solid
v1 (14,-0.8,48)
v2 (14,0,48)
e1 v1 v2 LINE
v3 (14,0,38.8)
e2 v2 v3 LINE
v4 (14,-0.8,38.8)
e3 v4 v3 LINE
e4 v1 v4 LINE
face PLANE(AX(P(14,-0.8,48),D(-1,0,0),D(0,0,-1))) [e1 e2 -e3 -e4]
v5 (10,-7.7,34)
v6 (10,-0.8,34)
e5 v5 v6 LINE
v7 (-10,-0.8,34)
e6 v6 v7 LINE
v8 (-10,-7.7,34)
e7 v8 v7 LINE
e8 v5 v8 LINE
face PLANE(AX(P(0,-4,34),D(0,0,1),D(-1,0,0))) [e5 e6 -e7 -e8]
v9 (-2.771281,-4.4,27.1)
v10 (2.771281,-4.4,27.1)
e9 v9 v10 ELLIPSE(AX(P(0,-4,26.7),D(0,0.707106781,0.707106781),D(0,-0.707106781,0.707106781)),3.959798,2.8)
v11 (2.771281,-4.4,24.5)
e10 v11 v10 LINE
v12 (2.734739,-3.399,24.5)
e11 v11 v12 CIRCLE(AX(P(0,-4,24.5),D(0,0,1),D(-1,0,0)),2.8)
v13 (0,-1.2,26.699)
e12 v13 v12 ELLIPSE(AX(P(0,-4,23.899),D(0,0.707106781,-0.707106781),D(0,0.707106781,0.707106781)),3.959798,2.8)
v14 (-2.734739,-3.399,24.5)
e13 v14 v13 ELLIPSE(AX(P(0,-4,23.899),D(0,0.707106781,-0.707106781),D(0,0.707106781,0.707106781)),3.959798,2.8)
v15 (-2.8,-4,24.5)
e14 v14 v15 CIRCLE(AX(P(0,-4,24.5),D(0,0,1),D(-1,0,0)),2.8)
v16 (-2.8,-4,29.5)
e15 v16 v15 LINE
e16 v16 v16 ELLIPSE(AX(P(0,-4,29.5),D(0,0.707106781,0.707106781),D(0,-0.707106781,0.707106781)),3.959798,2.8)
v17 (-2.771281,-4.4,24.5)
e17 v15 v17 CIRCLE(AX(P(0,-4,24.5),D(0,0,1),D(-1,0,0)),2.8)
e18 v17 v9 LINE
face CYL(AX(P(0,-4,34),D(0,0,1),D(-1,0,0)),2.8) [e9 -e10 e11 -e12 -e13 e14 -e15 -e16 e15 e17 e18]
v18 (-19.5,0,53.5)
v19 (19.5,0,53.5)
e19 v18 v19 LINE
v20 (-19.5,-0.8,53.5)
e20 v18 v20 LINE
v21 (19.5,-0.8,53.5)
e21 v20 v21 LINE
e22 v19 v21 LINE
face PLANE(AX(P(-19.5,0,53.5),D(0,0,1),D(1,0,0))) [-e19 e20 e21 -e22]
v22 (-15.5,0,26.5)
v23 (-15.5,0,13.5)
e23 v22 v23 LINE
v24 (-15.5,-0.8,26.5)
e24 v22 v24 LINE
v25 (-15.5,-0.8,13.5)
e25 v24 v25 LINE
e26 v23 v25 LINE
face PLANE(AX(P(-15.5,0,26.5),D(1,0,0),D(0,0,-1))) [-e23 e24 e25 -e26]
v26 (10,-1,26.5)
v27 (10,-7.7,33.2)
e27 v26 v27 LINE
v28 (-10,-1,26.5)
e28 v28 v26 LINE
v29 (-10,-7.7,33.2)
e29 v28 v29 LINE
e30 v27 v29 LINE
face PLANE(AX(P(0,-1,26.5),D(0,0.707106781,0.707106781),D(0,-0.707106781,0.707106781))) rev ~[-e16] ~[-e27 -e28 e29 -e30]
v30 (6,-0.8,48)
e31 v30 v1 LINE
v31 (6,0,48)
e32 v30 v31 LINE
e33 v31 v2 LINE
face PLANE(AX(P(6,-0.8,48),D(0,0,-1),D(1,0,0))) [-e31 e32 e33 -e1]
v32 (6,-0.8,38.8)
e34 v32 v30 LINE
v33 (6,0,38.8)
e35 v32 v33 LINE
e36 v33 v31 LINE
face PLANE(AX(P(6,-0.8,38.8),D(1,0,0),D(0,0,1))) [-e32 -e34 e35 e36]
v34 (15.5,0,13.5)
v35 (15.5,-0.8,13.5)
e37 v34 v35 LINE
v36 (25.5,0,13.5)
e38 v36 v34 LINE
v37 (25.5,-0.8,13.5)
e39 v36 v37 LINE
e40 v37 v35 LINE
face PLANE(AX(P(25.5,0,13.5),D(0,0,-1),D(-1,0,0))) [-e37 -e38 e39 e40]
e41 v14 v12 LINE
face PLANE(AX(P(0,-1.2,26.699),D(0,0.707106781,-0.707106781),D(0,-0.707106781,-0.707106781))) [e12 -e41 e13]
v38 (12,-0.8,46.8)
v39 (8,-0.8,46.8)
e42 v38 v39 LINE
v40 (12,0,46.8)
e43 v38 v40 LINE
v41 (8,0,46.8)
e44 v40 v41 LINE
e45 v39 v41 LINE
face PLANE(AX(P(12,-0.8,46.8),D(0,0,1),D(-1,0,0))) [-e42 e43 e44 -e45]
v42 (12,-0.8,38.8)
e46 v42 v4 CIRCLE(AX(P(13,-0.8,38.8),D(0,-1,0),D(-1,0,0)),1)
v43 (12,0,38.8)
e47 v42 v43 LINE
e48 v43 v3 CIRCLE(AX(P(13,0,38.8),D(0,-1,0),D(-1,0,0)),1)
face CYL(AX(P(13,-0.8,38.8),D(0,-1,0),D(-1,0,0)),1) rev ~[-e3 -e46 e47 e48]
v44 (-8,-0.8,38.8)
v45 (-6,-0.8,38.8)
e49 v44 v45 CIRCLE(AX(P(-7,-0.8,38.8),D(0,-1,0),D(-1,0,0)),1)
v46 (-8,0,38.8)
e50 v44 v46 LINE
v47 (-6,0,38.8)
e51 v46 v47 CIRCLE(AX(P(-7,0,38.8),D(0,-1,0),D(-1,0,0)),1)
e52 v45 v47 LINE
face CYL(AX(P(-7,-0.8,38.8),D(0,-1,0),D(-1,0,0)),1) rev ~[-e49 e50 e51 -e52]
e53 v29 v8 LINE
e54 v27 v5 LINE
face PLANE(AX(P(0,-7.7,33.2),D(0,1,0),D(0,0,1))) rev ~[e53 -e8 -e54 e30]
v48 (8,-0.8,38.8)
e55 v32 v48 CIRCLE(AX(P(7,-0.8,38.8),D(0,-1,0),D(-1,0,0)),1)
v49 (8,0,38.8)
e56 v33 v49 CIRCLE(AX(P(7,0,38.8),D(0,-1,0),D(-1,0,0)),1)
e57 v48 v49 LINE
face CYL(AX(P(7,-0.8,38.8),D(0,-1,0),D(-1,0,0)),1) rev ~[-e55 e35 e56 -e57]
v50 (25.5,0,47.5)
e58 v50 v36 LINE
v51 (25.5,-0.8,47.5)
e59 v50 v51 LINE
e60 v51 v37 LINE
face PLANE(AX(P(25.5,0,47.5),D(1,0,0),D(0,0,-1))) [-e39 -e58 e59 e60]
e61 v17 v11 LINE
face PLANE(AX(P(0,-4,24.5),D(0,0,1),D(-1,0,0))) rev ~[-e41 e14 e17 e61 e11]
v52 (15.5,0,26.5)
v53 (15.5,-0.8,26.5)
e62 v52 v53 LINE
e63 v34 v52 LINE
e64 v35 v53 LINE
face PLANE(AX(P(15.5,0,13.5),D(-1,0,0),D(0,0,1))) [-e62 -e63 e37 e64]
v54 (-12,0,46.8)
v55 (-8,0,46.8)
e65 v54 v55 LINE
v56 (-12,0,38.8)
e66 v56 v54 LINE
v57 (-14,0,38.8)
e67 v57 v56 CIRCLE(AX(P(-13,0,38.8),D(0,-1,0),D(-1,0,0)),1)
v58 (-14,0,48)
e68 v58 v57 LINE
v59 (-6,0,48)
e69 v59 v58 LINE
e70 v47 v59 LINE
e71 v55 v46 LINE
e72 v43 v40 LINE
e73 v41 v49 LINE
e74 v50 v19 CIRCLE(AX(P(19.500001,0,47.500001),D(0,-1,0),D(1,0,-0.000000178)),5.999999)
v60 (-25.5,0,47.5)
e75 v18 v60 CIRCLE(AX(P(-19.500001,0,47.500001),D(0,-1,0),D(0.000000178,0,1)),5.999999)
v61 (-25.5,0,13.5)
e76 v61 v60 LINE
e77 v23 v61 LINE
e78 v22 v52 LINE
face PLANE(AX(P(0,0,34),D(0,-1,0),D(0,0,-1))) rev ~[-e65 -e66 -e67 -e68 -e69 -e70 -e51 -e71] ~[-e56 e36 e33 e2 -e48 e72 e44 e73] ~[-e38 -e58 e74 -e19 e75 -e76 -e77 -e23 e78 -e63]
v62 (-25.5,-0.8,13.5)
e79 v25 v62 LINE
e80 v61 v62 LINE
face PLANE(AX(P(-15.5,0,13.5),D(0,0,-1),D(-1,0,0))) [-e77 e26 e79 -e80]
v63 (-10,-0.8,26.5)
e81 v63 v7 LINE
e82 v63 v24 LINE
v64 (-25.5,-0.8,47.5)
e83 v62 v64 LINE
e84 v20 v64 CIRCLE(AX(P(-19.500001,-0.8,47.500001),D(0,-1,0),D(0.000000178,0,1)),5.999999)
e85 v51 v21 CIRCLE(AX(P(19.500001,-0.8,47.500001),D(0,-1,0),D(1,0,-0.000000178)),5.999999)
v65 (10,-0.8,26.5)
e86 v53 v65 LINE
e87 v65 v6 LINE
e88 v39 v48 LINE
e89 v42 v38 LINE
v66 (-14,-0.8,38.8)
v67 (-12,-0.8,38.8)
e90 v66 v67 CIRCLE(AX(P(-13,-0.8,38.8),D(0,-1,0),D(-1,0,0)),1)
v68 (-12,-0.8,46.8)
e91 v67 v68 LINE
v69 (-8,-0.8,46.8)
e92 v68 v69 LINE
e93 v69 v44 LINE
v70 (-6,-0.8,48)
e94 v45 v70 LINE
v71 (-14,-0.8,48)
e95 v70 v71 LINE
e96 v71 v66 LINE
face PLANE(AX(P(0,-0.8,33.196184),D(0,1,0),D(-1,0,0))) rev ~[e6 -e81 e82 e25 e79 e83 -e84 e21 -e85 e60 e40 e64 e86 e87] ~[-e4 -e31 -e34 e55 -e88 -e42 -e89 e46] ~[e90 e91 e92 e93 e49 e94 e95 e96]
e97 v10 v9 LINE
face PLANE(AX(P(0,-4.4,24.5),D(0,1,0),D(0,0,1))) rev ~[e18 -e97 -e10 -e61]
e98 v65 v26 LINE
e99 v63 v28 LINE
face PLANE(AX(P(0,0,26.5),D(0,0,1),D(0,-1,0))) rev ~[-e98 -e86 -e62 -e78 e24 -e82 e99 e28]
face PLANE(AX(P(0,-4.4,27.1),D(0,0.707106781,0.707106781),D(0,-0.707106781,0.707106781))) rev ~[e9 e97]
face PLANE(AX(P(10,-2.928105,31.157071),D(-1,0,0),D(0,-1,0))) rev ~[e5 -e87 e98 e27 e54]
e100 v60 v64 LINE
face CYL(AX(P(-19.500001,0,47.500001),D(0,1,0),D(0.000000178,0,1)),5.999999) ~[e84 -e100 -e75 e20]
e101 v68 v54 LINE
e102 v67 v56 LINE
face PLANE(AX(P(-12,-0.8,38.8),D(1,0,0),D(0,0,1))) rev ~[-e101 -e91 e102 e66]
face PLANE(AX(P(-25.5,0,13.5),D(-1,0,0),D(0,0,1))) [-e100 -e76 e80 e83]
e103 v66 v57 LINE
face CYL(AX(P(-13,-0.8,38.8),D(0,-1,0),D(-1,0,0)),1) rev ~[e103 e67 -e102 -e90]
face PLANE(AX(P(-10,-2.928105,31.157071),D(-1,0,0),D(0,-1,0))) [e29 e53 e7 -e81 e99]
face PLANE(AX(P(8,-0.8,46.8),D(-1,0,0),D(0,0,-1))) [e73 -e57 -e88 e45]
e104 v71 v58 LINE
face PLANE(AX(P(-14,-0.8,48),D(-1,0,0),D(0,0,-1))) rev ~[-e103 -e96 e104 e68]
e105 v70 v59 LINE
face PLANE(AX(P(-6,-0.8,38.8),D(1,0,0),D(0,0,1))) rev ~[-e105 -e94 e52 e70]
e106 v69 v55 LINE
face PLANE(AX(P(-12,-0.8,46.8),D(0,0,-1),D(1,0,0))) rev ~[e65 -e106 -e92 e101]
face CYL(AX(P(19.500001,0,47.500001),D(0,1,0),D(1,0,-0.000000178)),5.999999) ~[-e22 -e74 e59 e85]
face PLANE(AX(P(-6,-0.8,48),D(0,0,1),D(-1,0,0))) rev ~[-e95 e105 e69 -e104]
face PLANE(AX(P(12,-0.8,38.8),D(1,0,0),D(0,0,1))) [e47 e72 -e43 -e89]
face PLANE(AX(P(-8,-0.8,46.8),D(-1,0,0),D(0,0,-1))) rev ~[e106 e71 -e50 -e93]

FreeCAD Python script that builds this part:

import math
import FreeCAD as App
import Part
import Sketcher
Q = App.Units.Quantity

doc = App.newDocument("Part")
params = doc.addObject("Spreadsheet::Sheet", "Params")
for row, (alias, value) in enumerate([
    ("sketch1_radius", "5.999999 mm"),
    ("sketch1_width", "10 mm"),
    ("sketch1_width2", "31 mm"),
    ("sketch1_height", "34 mm"),
    ("sketch1_height2", "13 mm"),
    ("pad1_length", "0.8 mm"),
    ("sketch2_width", "1 mm"),
    ("sketch2_width2", "7.7 mm"),
    ("sketch2_height", "7.5 mm"),
    ("pad2_length", "20 mm"),
    ("sketch3_diameter", "5.6 mm"),
    ("pad3_length", "9.5 mm"),
    ("sketch4_width", "3.3 mm"),
    ("sketch4_height", "5.9 mm"),
    ("pocket1_length", "6 mm"),
    ("sketch5_radius", "1 mm"),
    ("sketch5_width", "4 mm"),
    ("sketch5_height", "9.2 mm"),
    ("pocket2_length", "5 mm"),
], start=1):
    params.set(f"A{row}", alias)
    params.set(f"B{row}", "=" + value)
    params.setAlias(f"B{row}", alias)

body = doc.addObject("PartDesign::Body", "Body")

# Sketch on XZ plane
sketch1 = doc.addObject("Sketcher::SketchObject", "Sketch")
body.addObject(sketch1)
sketch1.AttachmentSupport = (doc.XZ_Plane, [""])
sketch1.MapMode = "FlatFace"
sketch1.addGeometry([
    Part.LineSegment(App.Vector(-25.5, 47.5, 0), App.Vector(-25.5, 13.5, 0)),  # 0
    Part.LineSegment(App.Vector(-25.5, 13.5, 0), App.Vector(-15.5, 13.5, 0)),  # 1
    Part.LineSegment(App.Vector(-15.5, 13.5, 0), App.Vector(-15.5, 26.5, 0)),  # 2
    Part.LineSegment(App.Vector(-15.5, 26.5, 0), App.Vector(15.5, 26.5, 0)),  # 3
    Part.LineSegment(App.Vector(15.5, 26.5, 0), App.Vector(15.5, 13.5, 0)),  # 4
    Part.LineSegment(App.Vector(15.5, 13.5, 0), App.Vector(25.5, 13.5, 0)),  # 5
    Part.LineSegment(App.Vector(25.5, 13.5, 0), App.Vector(25.5, 47.5, 0)),  # 6
    Part.ArcOfCircle(Part.Circle(App.Vector(19.500001, 47.500001, 0), App.Vector(0, 0, 1), 5.999999), math.radians(-0.00001), math.radians(90.00001)),  # 7
    Part.LineSegment(App.Vector(19.5, 53.5, 0), App.Vector(-19.5, 53.5, 0)),  # 8
    Part.ArcOfCircle(Part.Circle(App.Vector(-19.500001, 47.500001, 0), App.Vector(0, 0, 1), 5.999999), math.radians(89.99999), math.radians(180.00001)),  # 9
], False)
sketch1.addConstraint([
    Sketcher.Constraint("Coincident", 0, 2, 1, 1),
    Sketcher.Constraint("Coincident", 1, 2, 2, 1),
    Sketcher.Constraint("Coincident", 2, 2, 3, 1),
    Sketcher.Constraint("Coincident", 3, 2, 4, 1),
    Sketcher.Constraint("Coincident", 4, 2, 5, 1),
    Sketcher.Constraint("Coincident", 5, 2, 6, 1),
    Sketcher.Constraint("Tangent", 6, 2, 7, 1),
    Sketcher.Constraint("Tangent", 7, 2, 8, 1),
    Sketcher.Constraint("Tangent", 8, 2, 9, 1),
    Sketcher.Constraint("Tangent", 9, 2, 0, 1),
    Sketcher.Constraint("Vertical", 0),
    Sketcher.Constraint("Horizontal", 1),
    Sketcher.Constraint("Vertical", 2),
    Sketcher.Constraint("Horizontal", 3),
    Sketcher.Constraint("Vertical", 4),
    Sketcher.Constraint("Horizontal", 5),
    Sketcher.Constraint("Vertical", 6),
    Sketcher.Constraint("Horizontal", 8),
    Sketcher.Constraint("Equal", 7, 9),
    Sketcher.Constraint("Symmetric", 1, 2, 4, 2, -2),
    Sketcher.Constraint("Equal", 1, 5),
    Sketcher.Constraint("Radius", 7, Q("5.999999 mm")),
    Sketcher.Constraint("DistanceX", 1, 1, 1, 2, Q("10 mm")),
    Sketcher.Constraint("DistanceX", 3, 1, 3, 2, Q("31 mm")),
    Sketcher.Constraint("DistanceY", 0, 2, 0, 1, Q("34 mm")),
    Sketcher.Constraint("DistanceY", 2, 1, 2, 2, Q("13 mm")),
    Sketcher.Constraint("DistanceY", -1, 1, 7, 3, Q("47.500001 mm")),
])
sketch1.setExpression("Constraints[21]", "Params.sketch1_radius")
sketch1.setExpression("Constraints[22]", "Params.sketch1_width")
sketch1.setExpression("Constraints[23]", "Params.sketch1_width2")
sketch1.setExpression("Constraints[24]", "Params.sketch1_height")
sketch1.setExpression("Constraints[25]", "Params.sketch1_height2")
pad1 = doc.addObject("PartDesign::Pad", "Pad")
body.addObject(pad1)
pad1.Profile = sketch1
pad1.setExpression("Length", "Params.pad1_length")

# Sketch on YZ plane
sketch2 = doc.addObject("Sketcher::SketchObject", "Sketch001")
body.addObject(sketch2)
sketch2.AttachmentSupport = (doc.YZ_Plane, [""])
sketch2.MapMode = "FlatFace"
sketch2.addGeometry([
    Part.LineSegment(App.Vector(-7.7, 33.2, 0), App.Vector(-1, 26.5, 0)),  # 0
    Part.LineSegment(App.Vector(-1, 26.5, 0), App.Vector(0, 26.5, 0)),  # 1
    Part.LineSegment(App.Vector(0, 26.5, 0), App.Vector(0, 34, 0)),  # 2
    Part.LineSegment(App.Vector(0, 34, 0), App.Vector(-7.7, 34, 0)),  # 3
    Part.LineSegment(App.Vector(-7.7, 34, 0), App.Vector(-7.7, 33.2, 0)),  # 4
], False)
sketch2.addConstraint([
    Sketcher.Constraint("Coincident", 0, 2, 1, 1),
    Sketcher.Constraint("Coincident", 1, 2, 2, 1),
    Sketcher.Constraint("Coincident", 2, 2, 3, 1),
    Sketcher.Constraint("Coincident", 3, 2, 4, 1),
    Sketcher.Constraint("Coincident", 4, 2, 0, 1),
    Sketcher.Constraint("Horizontal", 1),
    Sketcher.Constraint("Vertical", 2),
    Sketcher.Constraint("Horizontal", 3),
    Sketcher.Constraint("Vertical", 4),
    Sketcher.Constraint("PointOnObject", 1, 2, -2),
    Sketcher.Constraint("DistanceX", 1, 1, 1, 2, Q("1 mm")),
    Sketcher.Constraint("Angle", 0, Q("-45 deg")),
    Sketcher.Constraint("DistanceX", 3, 2, 3, 1, Q("7.7 mm")),
    Sketcher.Constraint("DistanceY", 2, 1, 2, 2, Q("7.5 mm")),
    Sketcher.Constraint("DistanceY", -1, 1, 2, 2, Q("34 mm")),
])
sketch2.setExpression("Constraints[10]", "Params.sketch2_width")
sketch2.setExpression("Constraints[12]", "Params.sketch2_width2")
sketch2.setExpression("Constraints[13]", "Params.sketch2_height")
pad2 = doc.addObject("PartDesign::Pad", "Pad001")
body.addObject(pad2)
pad2.Profile = sketch2
pad2.setExpression("Length", "Params.pad2_length")
pad2.Midplane = True

# Sketch on XY plane
sketch3 = doc.addObject("Sketcher::SketchObject", "Sketch002")
body.addObject(sketch3)
sketch3.AttachmentSupport = (doc.XY_Plane, [""])
sketch3.MapMode = "FlatFace"
sketch3.AttachmentOffset = App.Placement(App.Vector(0, 0, 34), App.Rotation())
sketch3.addGeometry(Part.Circle(App.Vector(0, -4, 0), App.Vector(0, 0, 1), 2.8), False)
sketch3.addConstraint([
    Sketcher.Constraint("PointOnObject", 0, 3, -2),
    Sketcher.Constraint("Diameter", 0, Q("5.6 mm")),
    Sketcher.Constraint("DistanceY", 0, 3, -1, 1, Q("4 mm")),
])
sketch3.setExpression("Constraints[1]", "Params.sketch3_diameter")
pad3 = doc.addObject("PartDesign::Pad", "Pad002")
body.addObject(pad3)
pad3.Profile = sketch3
pad3.setExpression("Length", "Params.pad3_length")
pad3.Reversed = True

# Sketch on YZ plane
sketch4 = doc.addObject("Sketcher::SketchObject", "Sketch003")
body.addObject(sketch4)
sketch4.AttachmentSupport = (doc.YZ_Plane, [""])
sketch4.MapMode = "FlatFace"
sketch4.addGeometry([
    Part.LineSegment(App.Vector(-1.2, 26.699, 0), App.Vector(-3.399, 24.5, 0)),  # 0
    Part.LineSegment(App.Vector(-3.399, 24.5, 0), App.Vector(-1.2, 24.5, 0)),  # 1
    Part.LineSegment(App.Vector(-1.2, 24.5, 0), App.Vector(-1.2, 26.699, 0)),  # 2
    Part.LineSegment(App.Vector(-7.7, 30.4, 0), App.Vector(-7.7, 24.5, 0)),  # 3
    Part.LineSegment(App.Vector(-7.7, 24.5, 0), App.Vector(-4.4, 24.5, 0)),  # 4
    Part.LineSegment(App.Vector(-4.4, 24.5, 0), App.Vector(-4.4, 27.1, 0)),  # 5
    Part.LineSegment(App.Vector(-4.4, 27.1, 0), App.Vector(-7.7, 30.4, 0)),  # 6
], False)
sketch4.addConstraint([
    Sketcher.Constraint("Coincident", 0, 2, 1, 1),
    Sketcher.Constraint("Coincident", 1, 2, 2, 1),
    Sketcher.Constraint("Coincident", 2, 2, 0, 1),
    Sketcher.Constraint("Coincident", 3, 2, 4, 1),
    Sketcher.Constraint("Coincident", 4, 2, 5, 1),
    Sketcher.Constraint("Coincident", 5, 2, 6, 1),
    Sketcher.Constraint("Coincident", 6, 2, 3, 1),
    Sketcher.Constraint("Horizontal", 1),
    Sketcher.Constraint("Vertical", 2),
    Sketcher.Constraint("Vertical", 3),
    Sketcher.Constraint("Horizontal", 4),
    Sketcher.Constraint("Vertical", 5),
    Sketcher.Constraint("Perpendicular", 0, 6),
    Sketcher.Constraint("Horizontal", 1, 2, 3, 2),
    Sketcher.Constraint("Equal", 1, 2),
    Sketcher.Constraint("DistanceX", 4, 1, 4, 2, Q("3.3 mm")),
    Sketcher.Constraint("DistanceY", 3, 2, 3, 1, Q("5.9 mm")),
    Sketcher.Constraint("DistanceY", -1, 1, 0, 2, Q("24.5 mm")),
    Sketcher.Constraint("DistanceX", 1, 2, -1, 1, Q("1.2 mm")),
    Sketcher.Constraint("DistanceX", 3, 2, -1, 1, Q("7.7 mm")),
    Sketcher.Constraint("DistanceX", 1, 1, 1, 2, Q("2.199 mm")),
])
sketch4.setExpression("Constraints[15]", "Params.sketch4_width")
sketch4.setExpression("Constraints[16]", "Params.sketch4_height")
pocket1 = doc.addObject("PartDesign::Pocket", "Pocket")
body.addObject(pocket1)
pocket1.Profile = sketch4
pocket1.setExpression("Length", "Params.pocket1_length")
pocket1.Midplane = True

# Sketch on XZ plane
sketch5 = doc.addObject("Sketcher::SketchObject", "Sketch004")
body.addObject(sketch5)
sketch5.AttachmentSupport = (doc.XZ_Plane, [""])
sketch5.MapMode = "FlatFace"
sketch5.AttachmentOffset = App.Placement(App.Vector(0, 0, 0.8), App.Rotation())
sketch5.addGeometry([
    Part.LineSegment(App.Vector(-12, 38.8, 0), App.Vector(-12, 46.8, 0)),  # 0
    Part.LineSegment(App.Vector(-12, 46.8, 0), App.Vector(-8, 46.8, 0)),  # 1
    Part.LineSegment(App.Vector(-8, 46.8, 0), App.Vector(-8, 38.8, 0)),  # 2
    Part.ArcOfCircle(Part.Circle(App.Vector(-7, 38.8, 0), App.Vector(0, 0, 1), 1), math.radians(180), math.radians(360)),  # 3
    Part.LineSegment(App.Vector(-6, 38.8, 0), App.Vector(-6, 48, 0)),  # 4
    Part.LineSegment(App.Vector(-6, 48, 0), App.Vector(-14, 48, 0)),  # 5
    Part.LineSegment(App.Vector(-14, 48, 0), App.Vector(-14, 38.8, 0)),  # 6
    Part.ArcOfCircle(Part.Circle(App.Vector(-13, 38.8, 0), App.Vector(0, 0, 1), 1), math.radians(180), math.radians(360)),  # 7
    Part.LineSegment(App.Vector(12, 46.8, 0), App.Vector(12, 38.8, 0)),  # 8
    Part.ArcOfCircle(Part.Circle(App.Vector(13, 38.8, 0), App.Vector(0, 0, 1), 1), math.radians(180), math.radians(360)),  # 9
    Part.LineSegment(App.Vector(14, 38.8, 0), App.Vector(14, 48, 0)),  # 10
    Part.LineSegment(App.Vector(14, 48, 0), App.Vector(6, 48, 0)),  # 11
    Part.LineSegment(App.Vector(6, 48, 0), App.Vector(6, 38.8, 0)),  # 12
    Part.ArcOfCircle(Part.Circle(App.Vector(7, 38.8, 0), App.Vector(0, 0, 1), 1), math.radians(180), math.radians(360)),  # 13
    Part.LineSegment(App.Vector(8, 38.8, 0), App.Vector(8, 46.8, 0)),  # 14
    Part.LineSegment(App.Vector(8, 46.8, 0), App.Vector(12, 46.8, 0)),  # 15
], False)
sketch5.addConstraint([
    Sketcher.Constraint("Coincident", 0, 2, 1, 1),
    Sketcher.Constraint("Coincident", 1, 2, 2, 1),
    Sketcher.Constraint("Tangent", 2, 2, 3, 1),
    Sketcher.Constraint("Tangent", 3, 2, 4, 1),
    Sketcher.Constraint("Coincident", 4, 2, 5, 1),
    Sketcher.Constraint("Coincident", 5, 2, 6, 1),
    Sketcher.Constraint("Tangent", 6, 2, 7, 1),
    Sketcher.Constraint("Tangent", 7, 2, 0, 1),
    Sketcher.Constraint("Tangent", 8, 2, 9, 1),
    Sketcher.Constraint("Tangent", 9, 2, 10, 1),
    Sketcher.Constraint("Coincident", 10, 2, 11, 1),
    Sketcher.Constraint("Coincident", 11, 2, 12, 1),
    Sketcher.Constraint("Tangent", 12, 2, 13, 1),
    Sketcher.Constraint("Tangent", 13, 2, 14, 1),
    Sketcher.Constraint("Coincident", 14, 2, 15, 1),
    Sketcher.Constraint("Coincident", 15, 2, 8, 1),
    Sketcher.Constraint("Vertical", 0),
    Sketcher.Constraint("Horizontal", 1),
    Sketcher.Constraint("Vertical", 2),
    Sketcher.Constraint("Vertical", 4),
    Sketcher.Constraint("Horizontal", 5),
    Sketcher.Constraint("Vertical", 6),
    Sketcher.Constraint("Vertical", 8),
    Sketcher.Constraint("Vertical", 10),
    Sketcher.Constraint("Horizontal", 11),
    Sketcher.Constraint("Vertical", 12),
    Sketcher.Constraint("Vertical", 14),
    Sketcher.Constraint("Horizontal", 15),
    Sketcher.Constraint("Equal", 3, 7),
    Sketcher.Constraint("Equal", 7, 9),
    Sketcher.Constraint("Equal", 9, 13),
    Sketcher.Constraint("Symmetric", 7, 3, 9, 3, -2),
    Sketcher.Constraint("Symmetric", 3, 3, 13, 3, -2),
    Sketcher.Constraint("Horizontal", 3, 3, 7, 3),
    Sketcher.Constraint("Horizontal", 5, 2, 10, 2),
    Sketcher.Constraint("Horizontal", 1, 2, 14, 2),
    Sketcher.Constraint("Equal", 11, 0),
    Sketcher.Constraint("Radius", 3, Q("1 mm")),
    Sketcher.Constraint("DistanceX", 1, 1, 1, 2, Q("4 mm")),
    Sketcher.Constraint("DistanceY", 4, 1, 4, 2, Q("9.2 mm")),
    Sketcher.Constraint("DistanceX", 3, 3, -1, 1, Q("7 mm")),
    Sketcher.Constraint("DistanceY", -1, 1, 4, 2, Q("48 mm")),
])
sketch5.setExpression("Constraints[37]", "Params.sketch5_radius")
sketch5.setExpression("Constraints[38]", "Params.sketch5_width")
sketch5.setExpression("Constraints[39]", "Params.sketch5_height")
pocket2 = doc.addObject("PartDesign::Pocket", "Pocket001")
body.addObject(pocket2)
pocket2.Profile = sketch5
pocket2.setExpression("Length", "Params.pocket2_length")

doc.recompute()
